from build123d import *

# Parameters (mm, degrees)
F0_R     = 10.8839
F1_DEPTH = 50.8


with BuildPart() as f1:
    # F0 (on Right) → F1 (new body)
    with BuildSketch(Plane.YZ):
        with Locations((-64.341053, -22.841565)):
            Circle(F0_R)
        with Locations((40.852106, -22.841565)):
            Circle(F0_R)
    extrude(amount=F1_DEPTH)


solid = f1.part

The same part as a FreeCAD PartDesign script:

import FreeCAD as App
import Part
import Sketcher
Q = App.Units.Quantity

doc = App.newDocument("Part")
body = doc.addObject("PartDesign::Body", "Body")
body.AllowCompound = True

sketch1 = body.newObject("Sketcher::SketchObject", "Sketch")
sketch1.AttachmentSupport = (doc.getObject("YZ_Plane"), [""])
sketch1.MapMode = "FlatFace"
sketch1.addGeometry(Part.Circle(App.Vector(-64, -23, 0), App.Vector(0, 0, 1), 11), False)
sketch1.addGeometry(Part.Circle(App.Vector(41, -23, 0), App.Vector(0, 0, 1), 11), False)
sketch1.addConstraint(Sketcher.Constraint("Equal", 0, 1))
sketch1.addConstraint(Sketcher.Constraint("Horizontal", 0, 3, 1, 3))
sketch1.addConstraint(Sketcher.Constraint("Diameter", 0, Q("0.857 in")))
sketch1.addConstraint(Sketcher.Constraint("DistanceX", 0, 3, 1, 3, 105.193159))
sketch1.addConstraint(Sketcher.Constraint("DistanceX", 0, 3, -1, 1, 64.341053))
sketch1.addConstraint(Sketcher.Constraint("DistanceY", 0, 3, -1, 1, 22.841565))
pad1 = body.newObject("PartDesign::Pad", "Pad")
pad1.Profile = sketch1
pad1.Length = Q("2 in")

doc.recompute()
